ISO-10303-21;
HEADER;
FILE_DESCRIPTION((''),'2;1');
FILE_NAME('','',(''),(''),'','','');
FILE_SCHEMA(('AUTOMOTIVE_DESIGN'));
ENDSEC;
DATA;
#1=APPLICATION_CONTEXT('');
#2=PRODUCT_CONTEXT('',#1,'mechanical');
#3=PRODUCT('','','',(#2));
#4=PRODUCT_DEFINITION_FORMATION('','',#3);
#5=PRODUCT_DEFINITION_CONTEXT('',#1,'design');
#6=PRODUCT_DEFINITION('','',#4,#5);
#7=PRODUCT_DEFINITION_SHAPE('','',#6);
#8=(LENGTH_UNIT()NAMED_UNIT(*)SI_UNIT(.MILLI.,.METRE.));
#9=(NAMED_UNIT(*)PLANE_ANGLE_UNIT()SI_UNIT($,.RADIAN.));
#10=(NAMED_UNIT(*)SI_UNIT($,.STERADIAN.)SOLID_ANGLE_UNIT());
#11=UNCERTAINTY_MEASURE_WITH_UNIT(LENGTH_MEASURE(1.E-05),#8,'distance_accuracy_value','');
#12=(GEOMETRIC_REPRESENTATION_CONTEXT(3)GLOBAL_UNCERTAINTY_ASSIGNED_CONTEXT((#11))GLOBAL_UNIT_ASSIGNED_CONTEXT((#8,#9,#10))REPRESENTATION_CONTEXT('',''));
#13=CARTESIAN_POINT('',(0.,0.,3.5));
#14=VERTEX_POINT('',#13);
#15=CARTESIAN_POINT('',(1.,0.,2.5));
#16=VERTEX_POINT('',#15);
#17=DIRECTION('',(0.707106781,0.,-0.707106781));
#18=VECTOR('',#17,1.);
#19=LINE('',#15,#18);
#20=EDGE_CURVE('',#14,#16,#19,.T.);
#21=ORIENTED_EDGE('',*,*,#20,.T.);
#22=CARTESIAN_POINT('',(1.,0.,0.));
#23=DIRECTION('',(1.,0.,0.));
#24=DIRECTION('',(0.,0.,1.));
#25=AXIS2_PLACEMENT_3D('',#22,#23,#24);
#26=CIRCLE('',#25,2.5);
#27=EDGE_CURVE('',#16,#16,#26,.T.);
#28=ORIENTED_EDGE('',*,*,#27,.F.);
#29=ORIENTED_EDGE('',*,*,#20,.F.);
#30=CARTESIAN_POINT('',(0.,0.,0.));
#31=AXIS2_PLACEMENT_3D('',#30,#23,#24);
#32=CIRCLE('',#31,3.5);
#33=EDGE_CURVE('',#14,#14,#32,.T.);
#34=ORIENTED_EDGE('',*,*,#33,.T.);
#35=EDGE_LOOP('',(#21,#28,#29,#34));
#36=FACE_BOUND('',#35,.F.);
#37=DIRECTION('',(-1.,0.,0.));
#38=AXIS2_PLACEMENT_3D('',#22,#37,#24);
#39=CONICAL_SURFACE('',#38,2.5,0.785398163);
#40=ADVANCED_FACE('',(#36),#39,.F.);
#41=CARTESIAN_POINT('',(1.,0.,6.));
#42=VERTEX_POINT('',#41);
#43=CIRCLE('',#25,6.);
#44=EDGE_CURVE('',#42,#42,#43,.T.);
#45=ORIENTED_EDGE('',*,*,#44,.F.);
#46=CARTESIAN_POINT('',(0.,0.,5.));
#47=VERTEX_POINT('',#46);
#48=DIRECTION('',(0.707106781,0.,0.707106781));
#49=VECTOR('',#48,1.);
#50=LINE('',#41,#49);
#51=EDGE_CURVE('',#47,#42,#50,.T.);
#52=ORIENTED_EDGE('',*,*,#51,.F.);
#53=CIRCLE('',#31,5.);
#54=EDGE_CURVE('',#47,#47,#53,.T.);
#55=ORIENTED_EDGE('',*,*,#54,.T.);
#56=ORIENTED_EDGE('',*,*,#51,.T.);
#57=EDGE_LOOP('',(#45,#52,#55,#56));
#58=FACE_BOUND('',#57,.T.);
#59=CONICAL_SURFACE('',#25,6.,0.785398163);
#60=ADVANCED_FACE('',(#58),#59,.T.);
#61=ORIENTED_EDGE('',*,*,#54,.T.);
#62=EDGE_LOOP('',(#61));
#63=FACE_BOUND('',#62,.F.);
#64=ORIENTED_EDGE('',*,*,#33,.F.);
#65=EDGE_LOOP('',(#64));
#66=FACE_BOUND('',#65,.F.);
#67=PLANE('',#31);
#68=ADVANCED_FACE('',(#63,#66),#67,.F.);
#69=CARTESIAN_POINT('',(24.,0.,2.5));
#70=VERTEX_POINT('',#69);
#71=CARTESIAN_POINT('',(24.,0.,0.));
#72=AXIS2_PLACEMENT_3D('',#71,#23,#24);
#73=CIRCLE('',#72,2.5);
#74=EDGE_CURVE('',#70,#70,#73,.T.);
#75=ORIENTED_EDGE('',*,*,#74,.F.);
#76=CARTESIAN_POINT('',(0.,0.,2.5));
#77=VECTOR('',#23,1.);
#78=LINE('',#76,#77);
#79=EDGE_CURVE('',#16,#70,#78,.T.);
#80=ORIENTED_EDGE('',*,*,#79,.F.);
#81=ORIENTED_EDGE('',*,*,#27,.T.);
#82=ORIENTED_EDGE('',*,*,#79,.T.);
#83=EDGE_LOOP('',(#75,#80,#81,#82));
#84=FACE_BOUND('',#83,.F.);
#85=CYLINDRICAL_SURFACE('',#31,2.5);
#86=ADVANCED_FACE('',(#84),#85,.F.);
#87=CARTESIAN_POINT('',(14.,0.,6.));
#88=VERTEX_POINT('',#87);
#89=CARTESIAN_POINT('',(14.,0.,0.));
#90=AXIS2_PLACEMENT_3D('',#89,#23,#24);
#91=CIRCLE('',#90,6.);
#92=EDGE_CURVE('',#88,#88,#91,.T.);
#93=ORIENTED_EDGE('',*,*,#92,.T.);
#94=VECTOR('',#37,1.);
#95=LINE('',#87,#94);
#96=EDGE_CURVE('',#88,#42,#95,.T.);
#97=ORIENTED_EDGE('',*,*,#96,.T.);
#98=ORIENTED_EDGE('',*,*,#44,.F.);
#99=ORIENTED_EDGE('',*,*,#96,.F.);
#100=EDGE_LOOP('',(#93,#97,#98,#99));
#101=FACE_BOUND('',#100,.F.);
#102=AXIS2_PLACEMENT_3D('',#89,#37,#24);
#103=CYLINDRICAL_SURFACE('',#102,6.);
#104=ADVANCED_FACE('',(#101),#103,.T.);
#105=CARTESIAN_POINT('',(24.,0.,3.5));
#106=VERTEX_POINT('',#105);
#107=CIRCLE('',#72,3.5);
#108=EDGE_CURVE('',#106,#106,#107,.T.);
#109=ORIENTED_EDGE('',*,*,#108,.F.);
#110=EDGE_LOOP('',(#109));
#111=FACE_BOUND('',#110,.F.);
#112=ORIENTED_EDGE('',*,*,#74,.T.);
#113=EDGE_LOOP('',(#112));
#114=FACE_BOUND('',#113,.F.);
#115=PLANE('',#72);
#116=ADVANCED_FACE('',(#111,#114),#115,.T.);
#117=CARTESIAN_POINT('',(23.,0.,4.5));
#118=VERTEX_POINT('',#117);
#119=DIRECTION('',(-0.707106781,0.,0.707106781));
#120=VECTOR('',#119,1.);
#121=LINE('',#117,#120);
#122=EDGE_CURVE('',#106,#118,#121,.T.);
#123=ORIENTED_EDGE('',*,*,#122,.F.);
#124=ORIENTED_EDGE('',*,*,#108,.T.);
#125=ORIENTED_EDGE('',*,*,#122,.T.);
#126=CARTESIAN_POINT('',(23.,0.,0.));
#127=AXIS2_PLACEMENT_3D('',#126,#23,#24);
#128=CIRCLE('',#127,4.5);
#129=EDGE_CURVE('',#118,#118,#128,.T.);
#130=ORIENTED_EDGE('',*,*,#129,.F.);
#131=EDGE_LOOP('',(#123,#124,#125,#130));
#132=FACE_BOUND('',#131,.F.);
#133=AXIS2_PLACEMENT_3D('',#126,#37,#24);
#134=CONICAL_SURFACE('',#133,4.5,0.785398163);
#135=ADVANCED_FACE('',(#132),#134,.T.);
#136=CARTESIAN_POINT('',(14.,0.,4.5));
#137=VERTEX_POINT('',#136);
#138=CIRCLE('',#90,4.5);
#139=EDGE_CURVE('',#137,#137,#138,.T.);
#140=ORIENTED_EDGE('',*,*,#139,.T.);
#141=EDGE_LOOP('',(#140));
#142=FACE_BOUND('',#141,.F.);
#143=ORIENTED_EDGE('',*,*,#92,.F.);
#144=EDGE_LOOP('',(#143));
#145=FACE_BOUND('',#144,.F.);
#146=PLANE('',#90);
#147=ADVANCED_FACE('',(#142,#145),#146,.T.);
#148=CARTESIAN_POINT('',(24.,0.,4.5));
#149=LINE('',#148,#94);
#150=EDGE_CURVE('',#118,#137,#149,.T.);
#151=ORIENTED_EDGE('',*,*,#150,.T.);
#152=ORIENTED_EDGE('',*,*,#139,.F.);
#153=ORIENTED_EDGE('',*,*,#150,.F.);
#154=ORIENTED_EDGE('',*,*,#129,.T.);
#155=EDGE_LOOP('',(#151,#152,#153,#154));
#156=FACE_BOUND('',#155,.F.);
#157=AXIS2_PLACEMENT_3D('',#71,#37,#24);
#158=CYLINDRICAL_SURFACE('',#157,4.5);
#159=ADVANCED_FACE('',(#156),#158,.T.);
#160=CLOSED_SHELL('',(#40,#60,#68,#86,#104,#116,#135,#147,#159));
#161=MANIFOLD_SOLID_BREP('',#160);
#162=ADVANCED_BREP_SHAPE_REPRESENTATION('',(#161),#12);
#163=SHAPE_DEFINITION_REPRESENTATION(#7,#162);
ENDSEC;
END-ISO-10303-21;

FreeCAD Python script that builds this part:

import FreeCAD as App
import Part
import Sketcher
Q = App.Units.Quantity


def edges_at(feature, points):
    """Names of the edges that pass closest to the given points."""
    edges = feature.Shape.Edges
    near = lambda p: min(range(len(edges)), key=lambda i: edges[i].distToShape(Part.Vertex(*p))[0])
    return sorted({f"Edge{near(p) + 1}" for p in points})

doc = App.newDocument("Part")
body = doc.addObject("PartDesign::Body", "Body")

sketch1 = body.newObject("Sketcher::SketchObject", "Sketch")
sketch1.AttachmentSupport = (doc.getObject("XZ_Plane"), [""])
sketch1.MapMode = "FlatFace"
sketch1.addGeometry(Part.LineSegment(App.Vector(0, 6, 0), App.Vector(0, 2.5, 0)), False)
sketch1.addGeometry(Part.LineSegment(App.Vector(0, 2.5, 0), App.Vector(24, 2.5, 0)), False)
sketch1.addGeometry(Part.LineSegment(App.Vector(24, 2.5, 0), App.Vector(24, 4.5, 0)), False)
sketch1.addGeometry(Part.LineSegment(App.Vector(24, 4.5, 0), App.Vector(14, 4.5, 0)), False)
sketch1.addGeometry(Part.LineSegment(App.Vector(14, 4.5, 0), App.Vector(14, 6, 0)), False)
sketch1.addGeometry(Part.LineSegment(App.Vector(14, 6, 0), App.Vector(0, 6, 0)), False)
sketch1.addConstraint(Sketcher.Constraint("Coincident", 0, 2, 1, 1))
sketch1.addConstraint(Sketcher.Constraint("Coincident", 1, 2, 2, 1))
sketch1.addConstraint(Sketcher.Constraint("Coincident", 2, 2, 3, 1))
sketch1.addConstraint(Sketcher.Constraint("Coincident", 3, 2, 4, 1))
sketch1.addConstraint(Sketcher.Constraint("Coincident", 4, 2, 5, 1))
sketch1.addConstraint(Sketcher.Constraint("Coincident", 5, 2, 0, 1))
sketch1.addConstraint(Sketcher.Constraint("Vertical", 0))
sketch1.addConstraint(Sketcher.Constraint("Horizontal", 1))
sketch1.addConstraint(Sketcher.Constraint("Vertical", 2))
sketch1.addConstraint(Sketcher.Constraint("Horizontal", 3))
sketch1.addConstraint(Sketcher.Constraint("Vertical", 4))
sketch1.addConstraint(Sketcher.Constraint("Horizontal", 5))
sketch1.addConstraint(Sketcher.Constraint("PointOnObject", 0, 2, -2))
sketch1.addConstraint(Sketcher.Constraint("DistanceX", 1, 1, 1, 2, Q("24 mm")))
sketch1.addConstraint(Sketcher.Constraint("DistanceX", 3, 2, 3, 1, Q("10 mm")))
sketch1.addConstraint(Sketcher.Constraint("DistanceY", 2, 1, 2, 2, Q("2 mm")))
sketch1.addConstraint(Sketcher.Constraint("DistanceY", 0, 2, 0, 1, Q("3.5 mm")))
sketch1.addConstraint(Sketcher.Constraint("DistanceY", -1, 1, 4, 2, Q("6 mm")))
revolution = body.newObject("PartDesign::Revolution", "Revolution")
revolution.Profile = sketch1
revolution.ReferenceAxis = (sketch1, ["H_Axis"])
revolution.Angle = 360
doc.recompute()

chamfer = body.newObject("PartDesign::Chamfer", "Chamfer")
chamfer.Base = (revolution, edges_at(revolution, [(24, 0, -4.5), (0, 0, -6), (0, 0, -2.5)]))
chamfer.Size = 1

doc.recompute()
